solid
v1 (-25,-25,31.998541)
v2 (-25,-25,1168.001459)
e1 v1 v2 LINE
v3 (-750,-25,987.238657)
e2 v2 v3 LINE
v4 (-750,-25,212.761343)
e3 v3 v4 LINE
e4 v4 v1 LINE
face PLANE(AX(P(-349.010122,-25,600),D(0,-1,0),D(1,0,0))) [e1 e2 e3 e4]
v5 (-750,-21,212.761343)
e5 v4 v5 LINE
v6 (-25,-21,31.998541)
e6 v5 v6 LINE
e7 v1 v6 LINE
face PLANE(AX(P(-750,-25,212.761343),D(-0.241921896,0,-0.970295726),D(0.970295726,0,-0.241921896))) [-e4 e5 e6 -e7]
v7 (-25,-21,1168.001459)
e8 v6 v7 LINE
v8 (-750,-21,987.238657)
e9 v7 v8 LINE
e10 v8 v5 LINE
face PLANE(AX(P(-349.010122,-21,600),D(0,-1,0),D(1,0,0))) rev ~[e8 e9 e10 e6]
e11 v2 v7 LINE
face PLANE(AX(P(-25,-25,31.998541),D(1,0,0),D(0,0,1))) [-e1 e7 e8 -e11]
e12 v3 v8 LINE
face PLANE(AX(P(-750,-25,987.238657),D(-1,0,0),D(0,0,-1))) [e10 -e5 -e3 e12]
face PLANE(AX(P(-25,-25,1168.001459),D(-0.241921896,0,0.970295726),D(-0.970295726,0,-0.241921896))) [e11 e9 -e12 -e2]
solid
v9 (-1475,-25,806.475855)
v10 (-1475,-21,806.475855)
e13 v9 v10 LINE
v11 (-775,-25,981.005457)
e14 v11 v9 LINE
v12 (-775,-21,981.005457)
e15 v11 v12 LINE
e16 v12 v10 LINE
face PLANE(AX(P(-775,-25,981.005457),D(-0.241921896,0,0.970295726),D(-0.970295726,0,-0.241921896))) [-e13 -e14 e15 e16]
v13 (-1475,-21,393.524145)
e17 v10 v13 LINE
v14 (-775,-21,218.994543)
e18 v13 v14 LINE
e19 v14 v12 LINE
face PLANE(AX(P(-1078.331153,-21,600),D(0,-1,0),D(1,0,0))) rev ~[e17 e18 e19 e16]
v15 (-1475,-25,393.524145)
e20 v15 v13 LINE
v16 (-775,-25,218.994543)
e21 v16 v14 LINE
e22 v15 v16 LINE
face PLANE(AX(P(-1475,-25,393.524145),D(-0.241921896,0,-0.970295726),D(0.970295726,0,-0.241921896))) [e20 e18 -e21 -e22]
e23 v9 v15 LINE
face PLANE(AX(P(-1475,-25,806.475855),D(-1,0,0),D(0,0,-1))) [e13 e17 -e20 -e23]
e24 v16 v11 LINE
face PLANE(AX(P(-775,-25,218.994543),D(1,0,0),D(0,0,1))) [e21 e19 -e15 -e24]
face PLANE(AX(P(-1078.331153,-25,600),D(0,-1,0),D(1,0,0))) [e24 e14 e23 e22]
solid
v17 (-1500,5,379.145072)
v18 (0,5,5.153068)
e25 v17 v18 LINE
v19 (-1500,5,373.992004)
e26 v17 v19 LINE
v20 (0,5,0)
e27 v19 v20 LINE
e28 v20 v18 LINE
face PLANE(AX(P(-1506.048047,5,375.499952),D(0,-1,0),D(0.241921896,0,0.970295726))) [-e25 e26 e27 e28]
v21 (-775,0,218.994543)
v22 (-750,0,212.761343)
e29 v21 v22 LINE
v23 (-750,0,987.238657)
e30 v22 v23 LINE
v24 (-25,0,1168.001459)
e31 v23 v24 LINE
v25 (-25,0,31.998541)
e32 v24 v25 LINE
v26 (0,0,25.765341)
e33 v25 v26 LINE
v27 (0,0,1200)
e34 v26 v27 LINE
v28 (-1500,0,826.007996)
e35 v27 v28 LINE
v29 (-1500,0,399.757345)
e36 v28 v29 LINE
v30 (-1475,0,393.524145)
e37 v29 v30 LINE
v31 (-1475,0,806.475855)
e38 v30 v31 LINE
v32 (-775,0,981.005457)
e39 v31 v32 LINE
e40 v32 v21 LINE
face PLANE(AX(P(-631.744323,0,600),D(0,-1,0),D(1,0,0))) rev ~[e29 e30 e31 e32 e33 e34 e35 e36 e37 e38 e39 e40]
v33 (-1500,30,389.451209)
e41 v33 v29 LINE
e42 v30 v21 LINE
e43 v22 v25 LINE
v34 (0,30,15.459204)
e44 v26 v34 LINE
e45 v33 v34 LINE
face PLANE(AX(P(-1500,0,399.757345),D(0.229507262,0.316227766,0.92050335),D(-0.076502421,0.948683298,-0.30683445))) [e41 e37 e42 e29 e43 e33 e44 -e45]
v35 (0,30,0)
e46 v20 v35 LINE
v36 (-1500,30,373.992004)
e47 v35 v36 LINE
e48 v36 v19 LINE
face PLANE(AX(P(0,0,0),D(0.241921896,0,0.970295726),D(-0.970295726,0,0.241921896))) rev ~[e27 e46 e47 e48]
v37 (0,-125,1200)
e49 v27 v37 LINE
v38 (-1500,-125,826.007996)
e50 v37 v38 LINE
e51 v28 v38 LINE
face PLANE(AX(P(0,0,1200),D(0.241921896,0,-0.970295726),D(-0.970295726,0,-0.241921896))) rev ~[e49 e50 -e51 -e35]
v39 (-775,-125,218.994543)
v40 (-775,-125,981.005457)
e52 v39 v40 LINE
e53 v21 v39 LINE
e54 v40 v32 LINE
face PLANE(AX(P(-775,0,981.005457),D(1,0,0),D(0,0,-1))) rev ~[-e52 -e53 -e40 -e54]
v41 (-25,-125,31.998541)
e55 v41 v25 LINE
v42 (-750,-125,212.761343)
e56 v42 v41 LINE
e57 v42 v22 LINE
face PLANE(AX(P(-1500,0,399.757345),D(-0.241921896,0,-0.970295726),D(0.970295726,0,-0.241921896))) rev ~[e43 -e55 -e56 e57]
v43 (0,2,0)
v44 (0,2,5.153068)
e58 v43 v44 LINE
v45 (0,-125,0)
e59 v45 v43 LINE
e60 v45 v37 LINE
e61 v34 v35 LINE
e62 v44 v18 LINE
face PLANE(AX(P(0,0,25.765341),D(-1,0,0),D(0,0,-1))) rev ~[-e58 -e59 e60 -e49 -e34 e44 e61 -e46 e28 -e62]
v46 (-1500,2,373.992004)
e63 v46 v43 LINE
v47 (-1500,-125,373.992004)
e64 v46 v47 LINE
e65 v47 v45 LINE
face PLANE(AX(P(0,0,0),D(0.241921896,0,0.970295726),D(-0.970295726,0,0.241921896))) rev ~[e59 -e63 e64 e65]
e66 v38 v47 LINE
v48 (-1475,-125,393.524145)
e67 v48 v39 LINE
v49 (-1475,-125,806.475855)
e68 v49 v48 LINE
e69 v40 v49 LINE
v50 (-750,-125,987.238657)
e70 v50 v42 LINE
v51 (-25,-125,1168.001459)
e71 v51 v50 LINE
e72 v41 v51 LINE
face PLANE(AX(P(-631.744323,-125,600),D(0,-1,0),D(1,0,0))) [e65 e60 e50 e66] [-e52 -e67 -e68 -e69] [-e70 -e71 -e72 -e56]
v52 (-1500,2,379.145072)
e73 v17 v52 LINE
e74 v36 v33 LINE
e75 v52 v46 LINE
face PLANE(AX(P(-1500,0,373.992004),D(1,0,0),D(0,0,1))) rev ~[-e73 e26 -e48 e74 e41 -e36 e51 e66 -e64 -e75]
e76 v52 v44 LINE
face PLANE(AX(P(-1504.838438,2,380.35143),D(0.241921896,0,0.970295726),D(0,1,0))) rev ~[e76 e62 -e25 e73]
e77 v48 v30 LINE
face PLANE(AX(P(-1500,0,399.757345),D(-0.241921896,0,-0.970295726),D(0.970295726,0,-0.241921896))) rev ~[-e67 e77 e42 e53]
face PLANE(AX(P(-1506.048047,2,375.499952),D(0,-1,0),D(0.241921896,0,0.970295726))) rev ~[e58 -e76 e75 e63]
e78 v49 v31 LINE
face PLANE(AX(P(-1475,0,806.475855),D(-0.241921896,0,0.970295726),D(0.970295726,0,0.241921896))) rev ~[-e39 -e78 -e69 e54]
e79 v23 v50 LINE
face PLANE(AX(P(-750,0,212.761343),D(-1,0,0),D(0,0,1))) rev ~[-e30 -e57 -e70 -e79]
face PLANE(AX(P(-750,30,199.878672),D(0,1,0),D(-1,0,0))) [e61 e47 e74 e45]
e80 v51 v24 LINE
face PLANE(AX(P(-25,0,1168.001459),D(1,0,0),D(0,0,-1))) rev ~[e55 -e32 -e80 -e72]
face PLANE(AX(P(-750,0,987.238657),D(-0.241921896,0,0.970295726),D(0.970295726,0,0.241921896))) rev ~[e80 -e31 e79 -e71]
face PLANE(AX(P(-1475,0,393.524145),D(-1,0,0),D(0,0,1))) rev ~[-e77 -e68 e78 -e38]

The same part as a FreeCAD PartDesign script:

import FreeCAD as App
import Part
import Sketcher
Q = App.Units.Quantity


def add_polygon(sketch, points):
    """Adds a closed chain of lines whose ends are joined by coincident constraints."""
    first, n = sketch.GeometryCount, len(points)
    for a, b in zip(points, points[1:] + points[:1]):
        sketch.addGeometry(Part.LineSegment(App.Vector(*a, 0), App.Vector(*b, 0)), False)
    for i in range(n):
        sketch.addConstraint(Sketcher.Constraint("Coincident", first + i, 2, first + (i + 1) % n, 1))

doc = App.newDocument("Part")
body = doc.addObject("PartDesign::Body", "Body")

sketch1 = body.newObject("Sketcher::SketchObject", "Sketch")
sketch1.AttachmentSupport = (doc.getObject("XZ_Plane"), [""])
sketch1.MapMode = "FlatFace"
add_polygon(sketch1, [(-1500, 374), (0, 0), (0, 1200), (-1500, 826)])
sketch1.addConstraint(Sketcher.Constraint("Vertical", 1))
sketch1.addConstraint(Sketcher.Constraint("Vertical", 3))
sketch1.addConstraint(Sketcher.Constraint("Coincident", 0, 2, -1, 1))
sketch1.addConstraint(Sketcher.Constraint("Equal", 0, 2))
sketch1.addConstraint(Sketcher.Constraint("DistanceY", 1, 1, 1, 2, Q("1200 mm")))
sketch1.addConstraint(Sketcher.Constraint("Angle", 0, Q("-14 deg")))
sketch1.addConstraint(Sketcher.Constraint("DistanceX", 2, 2, -1, 1, Q("1500 mm")))
pad1 = body.newObject("PartDesign::Pad", "Pad")
pad1.Profile = sketch1
pad1.Length = 125

sketch2 = body.newObject("Sketcher::SketchObject", "Sketch001")
sketch2.AttachmentSupport = (doc.getObject("XZ_Plane"), [""])
sketch2.MapMode = "FlatFace"
sketch2.AttachmentOffset = App.Placement(App.Vector(0, 0, 125), App.Rotation())
add_polygon(sketch2, [(-25, 32), (-25, 1168), (-750, 987), (-750, 213)])
add_polygon(sketch2, [(-1475, 806), (-1475, 394), (-775, 219), (-775, 981)])
sketch2.addConstraint(Sketcher.Constraint("Vertical", 0))
sketch2.addConstraint(Sketcher.Constraint("Vertical", 2))
sketch2.addConstraint(Sketcher.Constraint("Vertical", 4))
sketch2.addConstraint(Sketcher.Constraint("Vertical", 6))
sketch2.addConstraint(Sketcher.Constraint("Parallel", 3, 5))
sketch2.addConstraint(Sketcher.Constraint("Parallel", 1, 7))
sketch2.addConstraint(Sketcher.Constraint("Equal", 1, 3))
sketch2.addConstraint(Sketcher.Constraint("Angle", 1, Q("-166 deg")))
sketch2.addConstraint(Sketcher.Constraint("DistanceX", 0, 2, -1, 1, Q("25 mm")))
sketch2.addConstraint(Sketcher.Constraint("DistanceX", 1, 2, -1, 1, Q("750 mm")))
sketch2.addConstraint(Sketcher.Constraint("DistanceX", 4, 2, -1, 1, Q("1475 mm")))
sketch2.addConstraint(Sketcher.Constraint("DistanceX", 5, 2, -1, 1, Q("775 mm")))
sketch2.addConstraint(Sketcher.Constraint("DistanceY", 0, 1, 0, 2, Q("1136.002918 mm")))
sketch2.addConstraint(Sketcher.Constraint("DistanceY", 4, 2, 4, 1, Q("412.95171 mm")))
sketch2.addConstraint(Sketcher.Constraint("DistanceY", 2, 2, 5, 2, Q("6.2332 mm")))
sketch2.addConstraint(Sketcher.Constraint("DistanceY", -1, 1, 0, 2, Q("1168.001459 mm")))
pocket1 = body.newObject("PartDesign::Pocket", "Pocket")
pocket1.Profile = sketch2
pocket1.Length = 50

sketch3 = body.newObject("Sketcher::SketchObject", "Sketch002")
sketch3.AttachmentSupport = (doc.getObject("XZ_Plane"), [""])
sketch3.MapMode = "FlatFace"
add_polygon(sketch3, [(-750, 987), (-25, 1168), (-25, 32), (-750, 213)])
add_polygon(sketch3, [(-775, 219), (-1475, 394), (-1475, 806), (-775, 981)])
sketch3.addConstraint(Sketcher.Constraint("Vertical", 1))
sketch3.addConstraint(Sketcher.Constraint("Vertical", 3))
sketch3.addConstraint(Sketcher.Constraint("Vertical", 5))
sketch3.addConstraint(Sketcher.Constraint("Vertical", 7))
sketch3.addConstraint(Sketcher.Constraint("Parallel", 2, 4))
sketch3.addConstraint(Sketcher.Constraint("Parallel", 0, 6))
sketch3.addConstraint(Sketcher.Constraint("Equal", 0, 2))
sketch3.addConstraint(Sketcher.Constraint("Angle", 0, Q("14 deg")))
sketch3.addConstraint(Sketcher.Constraint("DistanceX", 0, 2, -1, 1, Q("25 mm")))
sketch3.addConstraint(Sketcher.Constraint("DistanceX", 2, 2, -1, 1, Q("750 mm")))
sketch3.addConstraint(Sketcher.Constraint("DistanceX", 4, 2, -1, 1, Q("1475 mm")))
sketch3.addConstraint(Sketcher.Constraint("DistanceX", 6, 2, -1, 1, Q("775 mm")))
sketch3.addConstraint(Sketcher.Constraint("DistanceY", 1, 2, 1, 1, Q("1136.002918 mm")))
sketch3.addConstraint(Sketcher.Constraint("DistanceY", 5, 1, 5, 2, Q("412.95171 mm")))
sketch3.addConstraint(Sketcher.Constraint("DistanceY", 6, 2, 3, 2, Q("6.2332 mm")))
sketch3.addConstraint(Sketcher.Constraint("DistanceY", -1, 1, 0, 2, Q("1168.001459 mm")))
pocket2 = body.newObject("PartDesign::Pocket", "Pocket001")
pocket2.Profile = sketch3
pocket2.Type = "ThroughAll"
pocket2.Reversed = True

sketch4 = body.newObject("Sketcher::SketchObject", "Sketch003")
sketch4.AttachmentSupport = (doc.getObject("XZ_Plane"), [""])
sketch4.MapMode = "FlatFace"
add_polygon(sketch4, [(-1500, 400), (0, 26), (0, 0), (-1500, 374)])
sketch4.addConstraint(Sketcher.Constraint("Vertical", 1))
sketch4.addConstraint(Sketcher.Constraint("Vertical", 3))
sketch4.addConstraint(Sketcher.Constraint("Coincident", 1, 2, -1, 1))
sketch4.addConstraint(Sketcher.Constraint("Parallel", 0, 2))
sketch4.addConstraint(Sketcher.Constraint("Angle", 0, Q("-14 deg")))
sketch4.addConstraint(Sketcher.Constraint("DistanceX", 2, 2, -1, 1, Q("1500 mm")))
sketch4.addConstraint(Sketcher.Constraint("DistanceY", 1, 2, 1, 1, Q("25.765341 mm")))
pad2 = body.newObject("PartDesign::Pad", "Pad001")
pad2.Profile = sketch4
pad2.Length = 30
pad2.Reversed = True

sketch5 = body.newObject("Sketcher::SketchObject", "Sketch004")
sketch5.Placement = App.Placement(App.Vector(-1506.048047, 0, 375.499952), App.Rotation(App.Vector(0, 1, 0), App.Vector(0.241921896, 0, 0.970295726), App.Vector(0.970295726, 0, -0.241921896), "ZXY"))
add_polygon(sketch5, [(30, 15), (30, 25), (0, 25)])
sketch5.addConstraint(Sketcher.Constraint("Vertical", 0))
sketch5.addConstraint(Sketcher.Constraint("Horizontal", 1))
sketch5.addConstraint(Sketcher.Constraint("PointOnObject", 1, 2, -2))
sketch5.addConstraint(Sketcher.Constraint("DistanceX", 1, 2, 1, 1, Q("30 mm")))
sketch5.addConstraint(Sketcher.Constraint("DistanceY", 0, 1, 0, 2, Q("10 mm")))
sketch5.addConstraint(Sketcher.Constraint("DistanceY", -1, 1, 0, 2, Q("25 mm")))
pocket3 = body.newObject("PartDesign::Pocket", "Pocket002")
pocket3.Profile = sketch5
pocket3.Type = "ThroughAll"
pocket3.Reversed = True

sketch6 = body.newObject("Sketcher::SketchObject", "Sketch005")
sketch6.Placement = App.Placement(App.Vector(-1506.048047, 0, 375.499952), App.Rotation(App.Vector(0, 1, 0), App.Vector(0.241921896, 0, 0.970295726), App.Vector(0.970295726, 0, -0.241921896), "ZXY"))
add_polygon(sketch6, [(2, 5), (2, 0), (5, 0), (5, 5)])
sketch6.addConstraint(Sketcher.Constraint("Vertical", 0))
sketch6.addConstraint(Sketcher.Constraint("Horizontal", 1))
sketch6.addConstraint(Sketcher.Constraint("Vertical", 2))
sketch6.addConstraint(Sketcher.Constraint("Horizontal", 3))
sketch6.addConstraint(Sketcher.Constraint("PointOnObject", 0, 2, -1))
sketch6.addConstraint(Sketcher.Constraint("DistanceX", 1, 1, 1, 2, Q("3 mm")))
sketch6.addConstraint(Sketcher.Constraint("DistanceY", 0, 2, 0, 1, Q("5 mm")))
sketch6.addConstraint(Sketcher.Constraint("DistanceX", -1, 1, 0, 2, Q("2 mm")))
pocket4 = body.newObject("PartDesign::Pocket", "Pocket003")
pocket4.Profile = sketch6
pocket4.Type = "ThroughAll"
pocket4.Reversed = True
body2 = doc.addObject("PartDesign::Body", "Body001")

sketch7 = body2.newObject("Sketcher::SketchObject", "Sketch006")
sketch7.AttachmentSupport = (doc.getObject("XZ_Plane001"), [""])
sketch7.MapMode = "FlatFace"
sketch7.AttachmentOffset = App.Placement(App.Vector(0, 0, 25), App.Rotation())
add_polygon(sketch7, [(-25, 32), (-25, 1168), (-750, 987), (-750, 213)])
sketch7.addConstraint(Sketcher.Constraint("Vertical", 0))
sketch7.addConstraint(Sketcher.Constraint("Vertical", 2))
sketch7.addConstraint(Sketcher.Constraint("Equal", 1, 3))
sketch7.addConstraint(Sketcher.Constraint("Angle", 1, Q("-166 deg")))
sketch7.addConstraint(Sketcher.Constraint("DistanceX", 0, 2, -1, 1, Q("25 mm")))
sketch7.addConstraint(Sketcher.Constraint("DistanceX", 1, 2, -1, 1, Q("750 mm")))
sketch7.addConstraint(Sketcher.Constraint("DistanceY", 0, 1, 0, 2, Q("1136.002918 mm")))
sketch7.addConstraint(Sketcher.Constraint("DistanceY", -1, 1, 0, 2, Q("1168.001459 mm")))
pad3 = body2.newObject("PartDesign::Pad", "Pad002")
pad3.Profile = sketch7
pad3.Length = 4
pad3.Reversed = True
body3 = doc.addObject("PartDesign::Body", "Body002")

sketch8 = body3.newObject("Sketcher::SketchObject", "Sketch007")
sketch8.AttachmentSupport = (doc.getObject("XZ_Plane002"), [""])
sketch8.MapMode = "FlatFace"
sketch8.AttachmentOffset = App.Placement(App.Vector(0, 0, 25), App.Rotation())
add_polygon(sketch8, [(-775, 219), (-775, 981), (-1475, 806), (-1475, 394)])
sketch8.addConstraint(Sketcher.Constraint("Vertical", 0))
sketch8.addConstraint(Sketcher.Constraint("Vertical", 2))
sketch8.addConstraint(Sketcher.Constraint("Equal", 1, 3))
sketch8.addConstraint(Sketcher.Constraint("Angle", 1, Q("-166 deg")))
sketch8.addConstraint(Sketcher.Constraint("DistanceX", 0, 2, -1, 1, Q("775 mm")))
sketch8.addConstraint(Sketcher.Constraint("DistanceX", 1, 2, -1, 1, Q("1475 mm")))
sketch8.addConstraint(Sketcher.Constraint("DistanceY", 2, 2, 2, 1, Q("412.95171 mm")))
sketch8.addConstraint(Sketcher.Constraint("DistanceY", -1, 1, 0, 2, Q("981.005457 mm")))
pad4 = body3.newObject("PartDesign::Pad", "Pad003")
pad4.Profile = sketch8
pad4.Length = 4
pad4.Reversed = True

doc.recompute()
